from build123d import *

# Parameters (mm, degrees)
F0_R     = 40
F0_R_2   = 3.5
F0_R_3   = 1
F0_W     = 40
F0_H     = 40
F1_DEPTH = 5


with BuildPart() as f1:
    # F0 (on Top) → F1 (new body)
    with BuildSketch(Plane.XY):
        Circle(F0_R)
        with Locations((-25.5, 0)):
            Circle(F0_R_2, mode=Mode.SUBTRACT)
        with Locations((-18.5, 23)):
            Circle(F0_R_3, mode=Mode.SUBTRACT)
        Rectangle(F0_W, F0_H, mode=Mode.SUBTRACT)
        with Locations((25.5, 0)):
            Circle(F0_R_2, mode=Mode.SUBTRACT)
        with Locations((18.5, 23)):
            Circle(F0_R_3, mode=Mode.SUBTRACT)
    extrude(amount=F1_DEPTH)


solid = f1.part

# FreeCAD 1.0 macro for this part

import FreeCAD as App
import Part
import Sketcher
from FreeCAD import Vector
Q = App.Units.Quantity


def add_polygon(sketch, points):
    """Adds a closed chain of lines whose ends are joined by coincident constraints."""
    first, n = sketch.GeometryCount, len(points)
    for a, b in zip(points, points[1:] + points[:1]):
        sketch.addGeometry(Part.LineSegment(App.Vector(*a, 0), App.Vector(*b, 0)), False)
    for i in range(n):
        sketch.addConstraint(Sketcher.Constraint("Coincident", first + i, 2, first + (i + 1) % n, 1))

doc = App.newDocument("Part")
params = doc.addObject("Spreadsheet::Sheet", "Params")
for row, (alias, value) in enumerate([
    ("sketch1_diameter", "80 mm"),
    ("sketch1_diameter2", "7 mm"),
    ("sketch1_diameter3", "2 mm"),
    ("sketch1_width", "40 mm"),
    ("pad1_length", "5 mm"),
], start=1):
    params.set(f"A{row}", alias)
    params.set(f"B{row}", "=" + value)
    params.setAlias(f"B{row}", alias)

body = doc.addObject("PartDesign::Body", "Body")

# Sketch on XY plane
sketch1 = body.newObject("Sketcher::SketchObject", "Sketch")
sketch1.AttachmentSupport = (doc.getObject("XY_Plane"), [""])
sketch1.MapMode = "FlatFace"
sketch1.addGeometry(Part.Circle(Vector(0, 0, 0), Vector(0, 0, 1), 40), False)  # 0
sketch1.addGeometry(Part.Circle(Vector(-25.5, 0, 0), Vector(0, 0, 1), 3.5), False)  # 1
add_polygon(sketch1, [(20, -20), (-20, -20), (-20, 20), (20, 20)])  # lines 2-5
sketch1.addGeometry(Part.Circle(Vector(25.5, 0, 0), Vector(0, 0, 1), 3.5), False)  # 6
sketch1.addGeometry(Part.Circle(Vector(-18.5, 23, 0), Vector(0, 0, 1), 1), False)  # 7
sketch1.addGeometry(Part.Circle(Vector(18.5, 23, 0), Vector(0, 0, 1), 1), False)  # 8
sketch1.addConstraint([
    Sketcher.Constraint("Horizontal", 2),
    Sketcher.Constraint("Vertical", 3),
    Sketcher.Constraint("Horizontal", 4),
    Sketcher.Constraint("Vertical", 5),
    Sketcher.Constraint("Coincident", 0, 3, -1, 1),
    Sketcher.Constraint("Equal", 1, 6),
    Sketcher.Constraint("Equal", 7, 8),
    Sketcher.Constraint("Symmetric", 1, 3, 6, 3, -1, 1),
    Sketcher.Constraint("Symmetric", 2, 2, 4, 2, -1, 1),
    Sketcher.Constraint("Symmetric", 7, 3, 8, 3, -2),
    Sketcher.Constraint("PointOnObject", 1, 3, -1),
    Sketcher.Constraint("Equal", 4, 3),
    Sketcher.Constraint("Diameter", 0, Q("80 mm")),
    Sketcher.Constraint("Diameter", 1, Q("7 mm")),
    Sketcher.Constraint("Diameter", 7, Q("2 mm")),
    Sketcher.Constraint("DistanceX", 2, 2, 2, 1, Q("40 mm")),
    Sketcher.Constraint("DistanceY", -1, 1, 7, 3, Q("23 mm")),
    Sketcher.Constraint("DistanceX", 1, 3, 6, 3, Q("51 mm")),
    Sketcher.Constraint("DistanceX", 1, 3, 7, 3, Q("7 mm")),
])
sketch1.setExpression("Constraints[16]", "Params.sketch1_diameter")
sketch1.setExpression("Constraints[17]", "Params.sketch1_diameter2")
sketch1.setExpression("Constraints[18]", "Params.sketch1_diameter3")
sketch1.setExpression("Constraints[19]", "Params.sketch1_width")
pad1 = body.newObject("PartDesign::Pad", "Pad")
pad1.Profile = sketch1
pad1.setExpression("Length", "Params.pad1_length")

doc.recompute()
